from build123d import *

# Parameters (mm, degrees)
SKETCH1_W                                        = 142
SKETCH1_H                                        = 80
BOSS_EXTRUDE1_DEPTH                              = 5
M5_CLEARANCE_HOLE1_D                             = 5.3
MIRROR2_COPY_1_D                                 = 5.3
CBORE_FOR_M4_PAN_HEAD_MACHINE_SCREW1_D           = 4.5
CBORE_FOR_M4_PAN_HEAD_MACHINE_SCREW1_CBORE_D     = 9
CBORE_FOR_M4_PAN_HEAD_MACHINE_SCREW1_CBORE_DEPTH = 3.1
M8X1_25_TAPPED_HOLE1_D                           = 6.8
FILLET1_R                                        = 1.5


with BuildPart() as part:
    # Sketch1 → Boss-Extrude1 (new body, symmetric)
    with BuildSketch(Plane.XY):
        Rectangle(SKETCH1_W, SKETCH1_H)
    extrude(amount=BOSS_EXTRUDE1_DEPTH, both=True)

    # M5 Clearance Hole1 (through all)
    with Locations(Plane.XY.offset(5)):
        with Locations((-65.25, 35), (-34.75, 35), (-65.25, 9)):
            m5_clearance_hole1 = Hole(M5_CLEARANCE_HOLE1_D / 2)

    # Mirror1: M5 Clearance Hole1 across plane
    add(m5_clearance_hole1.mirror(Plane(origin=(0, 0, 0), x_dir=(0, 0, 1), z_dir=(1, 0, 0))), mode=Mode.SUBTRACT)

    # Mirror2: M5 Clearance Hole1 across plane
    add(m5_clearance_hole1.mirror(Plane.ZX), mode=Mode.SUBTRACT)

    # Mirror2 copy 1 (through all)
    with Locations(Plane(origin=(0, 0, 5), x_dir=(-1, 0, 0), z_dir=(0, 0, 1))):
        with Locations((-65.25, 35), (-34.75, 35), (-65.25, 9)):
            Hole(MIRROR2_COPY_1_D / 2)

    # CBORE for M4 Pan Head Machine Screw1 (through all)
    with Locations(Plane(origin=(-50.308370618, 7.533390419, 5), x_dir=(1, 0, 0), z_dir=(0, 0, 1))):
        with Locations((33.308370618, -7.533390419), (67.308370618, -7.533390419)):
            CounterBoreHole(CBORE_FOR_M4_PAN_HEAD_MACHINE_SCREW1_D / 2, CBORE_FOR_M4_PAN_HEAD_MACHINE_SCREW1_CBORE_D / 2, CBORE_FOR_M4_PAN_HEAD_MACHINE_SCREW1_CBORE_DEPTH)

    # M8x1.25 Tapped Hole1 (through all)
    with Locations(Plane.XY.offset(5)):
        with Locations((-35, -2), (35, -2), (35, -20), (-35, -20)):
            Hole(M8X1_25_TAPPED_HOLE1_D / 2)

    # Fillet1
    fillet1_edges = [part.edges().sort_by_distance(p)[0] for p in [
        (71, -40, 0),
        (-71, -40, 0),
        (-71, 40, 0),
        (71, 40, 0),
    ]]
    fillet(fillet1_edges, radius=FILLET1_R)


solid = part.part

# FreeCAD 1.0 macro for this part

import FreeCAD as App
import Part
import Sketcher
from FreeCAD import Vector
Q = App.Units.Quantity


def edges_at(feature, points):
    """Names of the edges that pass closest to the given points."""
    edges = feature.Shape.Edges
    near = lambda p: min(range(len(edges)), key=lambda i: edges[i].distToShape(Part.Vertex(*p))[0])
    return sorted({f"Edge{near(p) + 1}" for p in points})


def add_polygon(sketch, points):
    """Adds a closed chain of lines whose ends are joined by coincident constraints."""
    first, n = sketch.GeometryCount, len(points)
    for a, b in zip(points, points[1:] + points[:1]):
        sketch.addGeometry(Part.LineSegment(App.Vector(*a, 0), App.Vector(*b, 0)), False)
    for i in range(n):
        sketch.addConstraint(Sketcher.Constraint("Coincident", first + i, 2, first + (i + 1) % n, 1))

doc = App.newDocument("Part")
body = doc.addObject("PartDesign::Body", "Body")

sketch1 = body.newObject("Sketcher::SketchObject", "Sketch")
sketch1.AttachmentSupport = (doc.getObject("XY_Plane"), [""])
sketch1.MapMode = "FlatFace"
add_polygon(sketch1, [(-71, 40), (-71, -40), (71, -40), (71, 40)])
sketch1.addConstraint([
    Sketcher.Constraint("Vertical", 0),
    Sketcher.Constraint("Horizontal", 1),
    Sketcher.Constraint("Vertical", 2),
    Sketcher.Constraint("Horizontal", 3),
    Sketcher.Constraint("Symmetric", 0, 2, 2, 2, -1, 1),
    Sketcher.Constraint("DistanceX", 1, 1, 1, 2, Q("142 mm")),
    Sketcher.Constraint("DistanceY", 0, 2, 0, 1, Q("80 mm")),
])
pad1 = body.newObject("PartDesign::Pad", "Pad")
pad1.Profile = sketch1
pad1.Length = 10
pad1.Midplane = True

sketch2 = body.newObject("Sketcher::SketchObject", "Sketch001")
sketch2.AttachmentSupport = (doc.getObject("XY_Plane"), [""])
sketch2.MapMode = "FlatFace"
sketch2.AttachmentOffset = App.Placement(Vector(0, 0, 5), App.Rotation())
sketch2.addGeometry([
    Part.Circle(Vector(-65.2, 35, 0), Vector(0, 0, 1), 2.6),
    Part.Circle(Vector(-34.8, 35, 0), Vector(0, 0, 1), 2.6),
    Part.Circle(Vector(-65.2, 9, 0), Vector(0, 0, 1), 2.6),
], False)
sketch2.addConstraint([
    Sketcher.Constraint("Equal", 0, 1),
    Sketcher.Constraint("Equal", 1, 2),
    Sketcher.Constraint("Horizontal", 0, 3, 1, 3),
    Sketcher.Constraint("Vertical", 0, 3, 2, 3),
    Sketcher.Constraint("Diameter", 0, Q("5.3 mm")),
    Sketcher.Constraint("DistanceY", -1, 1, 0, 3, Q("35 mm")),
    Sketcher.Constraint("DistanceY", -1, 1, 2, 3, Q("9 mm")),
    Sketcher.Constraint("DistanceX", 0, 3, 1, 3, Q("30.5 mm")),
    Sketcher.Constraint("DistanceX", 0, 3, -1, 1, Q("65.25 mm")),
])
doc.recompute()
hole = body.newObject("PartDesign::Hole", "Hole")
hole.Profile = sketch2
hole.ThreadType = "None"
hole.Diameter = 5.3
hole.DepthType = "ThroughAll"
doc.recompute()

mirrored = body.newObject("PartDesign::Mirrored", "Mirrored")
mirrored.Originals = [hole]
mirrored.MirrorPlane = (doc.getObject("YZ_Plane"), [""])
body.Tip = mirrored
doc.recompute()

mirrored2 = body.newObject("PartDesign::Mirrored", "Mirrored001")
mirrored2.Originals = [hole]
mirrored2.MirrorPlane = (doc.getObject("XZ_Plane"), [""])
body.Tip = mirrored2

sketch3 = body.newObject("Sketcher::SketchObject", "Sketch002")
sketch3.AttachmentSupport = (doc.getObject("XY_Plane"), [""])
sketch3.MapMode = "FlatFace"
sketch3.AttachmentOffset = App.Placement(Vector(0, 0, 5), App.Rotation())
sketch3.addGeometry([
    Part.Circle(Vector(65.2, -35, 0), Vector(0, 0, 1), 2.6),
    Part.Circle(Vector(34.8, -35, 0), Vector(0, 0, 1), 2.6),
    Part.Circle(Vector(65.2, -9, 0), Vector(0, 0, 1), 2.6),
], False)
sketch3.addConstraint([
    Sketcher.Constraint("Equal", 0, 1),
    Sketcher.Constraint("Equal", 1, 2),
    Sketcher.Constraint("Horizontal", 0, 3, 1, 3),
    Sketcher.Constraint("Vertical", 0, 3, 2, 3),
    Sketcher.Constraint("Diameter", 0, Q("5.3 mm")),
    Sketcher.Constraint("DistanceY", 0, 3, -1, 1, Q("35 mm")),
    Sketcher.Constraint("DistanceY", 2, 3, -1, 1, Q("9 mm")),
    Sketcher.Constraint("DistanceX", 1, 3, 0, 3, Q("30.5 mm")),
    Sketcher.Constraint("DistanceX", -1, 1, 0, 3, Q("65.25 mm")),
])
doc.recompute()
hole2 = body.newObject("PartDesign::Hole", "Hole001")
hole2.Profile = sketch3
hole2.ThreadType = "None"
hole2.Diameter = 5.3
hole2.DepthType = "ThroughAll"

sketch4 = body.newObject("Sketcher::SketchObject", "Sketch003")
sketch4.AttachmentSupport = (doc.getObject("XY_Plane"), [""])
sketch4.MapMode = "FlatFace"
sketch4.AttachmentOffset = App.Placement(Vector(0, 0, 5), App.Rotation())
sketch4.addGeometry([
    Part.Circle(Vector(-17, 0, 0), Vector(0, 0, 1), 2.2),
    Part.Circle(Vector(17, 0, 0), Vector(0, 0, 1), 2.2),
], False)
sketch4.addConstraint([
    Sketcher.Constraint("Equal", 0, 1),
    Sketcher.Constraint("Symmetric", 0, 3, 1, 3, -1, 1),
    Sketcher.Constraint("PointOnObject", 0, 3, -1),
    Sketcher.Constraint("Diameter", 0, Q("4.5 mm")),
    Sketcher.Constraint("DistanceX", 0, 3, -1, 1, Q("17 mm")),
])
doc.recompute()
hole3 = body.newObject("PartDesign::Hole", "Hole002")
hole3.Profile = sketch4
hole3.ThreadType = "None"
hole3.Diameter = 4.5
hole3.DepthType = "ThroughAll"
hole3.HoleCutType = "Counterbore"
hole3.HoleCutDiameter = 9
hole3.HoleCutDepth = 3.1

sketch5 = body.newObject("Sketcher::SketchObject", "Sketch004")
sketch5.AttachmentSupport = (doc.getObject("XY_Plane"), [""])
sketch5.MapMode = "FlatFace"
sketch5.AttachmentOffset = App.Placement(Vector(0, 0, 5), App.Rotation())
sketch5.addGeometry([
    Part.Circle(Vector(-35, -2, 0), Vector(0, 0, 1), 3.4),
    Part.Circle(Vector(35, -2, 0), Vector(0, 0, 1), 3.4),
    Part.Circle(Vector(35, -20, 0), Vector(0, 0, 1), 3.4),
    Part.Circle(Vector(-35, -20, 0), Vector(0, 0, 1), 3.4),
], False)
sketch5.addConstraint([
    Sketcher.Constraint("Equal", 0, 1),
    Sketcher.Constraint("Equal", 1, 2),
    Sketcher.Constraint("Equal", 2, 3),
    Sketcher.Constraint("Symmetric", 0, 3, 1, 3, -2),
    Sketcher.Constraint("Symmetric", 2, 3, 3, 3, -2),
    Sketcher.Constraint("Vertical", 1, 3, 2, 3),
    Sketcher.Constraint("Diameter", 0, Q("6.8 mm")),
    Sketcher.Constraint("DistanceX", 0, 3, -1, 1, Q("35 mm")),
    Sketcher.Constraint("DistanceY", 0, 3, -1, 1, Q("2 mm")),
    Sketcher.Constraint("DistanceY", 2, 3, -1, 1, Q("20 mm")),
])
doc.recompute()
hole4 = body.newObject("PartDesign::Hole", "Hole003")
hole4.Profile = sketch5
hole4.ThreadType = "None"
hole4.Diameter = 6.8
hole4.DepthType = "ThroughAll"
doc.recompute()

fillet = body.newObject("PartDesign::Fillet", "Fillet")
fillet.Base = (hole4, edges_at(hole4, [
    (71, -40, 0),
    (-71, -40, 0),
    (-71, 40, 0),
    (71, 40, 0),
]))
fillet.Radius = 1.5

doc.recompute()
